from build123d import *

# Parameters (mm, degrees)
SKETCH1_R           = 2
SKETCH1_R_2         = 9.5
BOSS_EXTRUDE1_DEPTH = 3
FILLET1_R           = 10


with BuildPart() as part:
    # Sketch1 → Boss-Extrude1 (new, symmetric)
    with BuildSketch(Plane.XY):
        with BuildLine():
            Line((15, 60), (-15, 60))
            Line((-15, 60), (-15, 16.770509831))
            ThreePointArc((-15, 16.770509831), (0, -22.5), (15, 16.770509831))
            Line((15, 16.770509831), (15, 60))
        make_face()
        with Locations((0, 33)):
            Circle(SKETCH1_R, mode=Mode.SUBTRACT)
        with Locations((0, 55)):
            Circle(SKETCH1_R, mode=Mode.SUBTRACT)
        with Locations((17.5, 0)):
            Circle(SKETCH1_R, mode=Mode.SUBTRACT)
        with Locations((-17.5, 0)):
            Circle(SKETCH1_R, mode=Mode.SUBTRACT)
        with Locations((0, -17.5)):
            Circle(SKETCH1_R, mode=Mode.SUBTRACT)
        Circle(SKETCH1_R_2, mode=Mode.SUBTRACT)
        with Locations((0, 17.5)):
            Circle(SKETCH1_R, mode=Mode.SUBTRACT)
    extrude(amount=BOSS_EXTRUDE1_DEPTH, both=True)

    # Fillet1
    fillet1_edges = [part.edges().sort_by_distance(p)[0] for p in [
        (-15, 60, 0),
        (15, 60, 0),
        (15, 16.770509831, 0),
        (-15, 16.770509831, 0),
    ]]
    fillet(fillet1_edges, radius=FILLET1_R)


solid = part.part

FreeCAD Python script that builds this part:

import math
import FreeCAD as App
import Part
import Sketcher


def edges_at(feature, points):
    """Names of the edges that pass closest to the given points."""
    edges = feature.Shape.Edges
    near = lambda p: min(range(len(edges)), key=lambda i: edges[i].distToShape(Part.Vertex(*p))[0])
    return sorted({f"Edge{near(p) + 1}" for p in points})

doc = App.newDocument("Part")
body = doc.addObject("PartDesign::Body", "Body")

sketch1 = doc.addObject("Sketcher::SketchObject", "Sketch")
body.addObject(sketch1)
sketch1.AttachmentSupport = (doc.XY_Plane, [""])
sketch1.MapMode = "FlatFace"
sketch1.addGeometry([
    Part.LineSegment(App.Vector(15, 60, 0), App.Vector(-15, 60, 0)),
    Part.LineSegment(App.Vector(-15, 60, 0), App.Vector(-15, 16.8, 0)),
    Part.ArcOfCircle(Part.Circle(App.Vector(0, 0, 0), App.Vector(0, 0, 1), 22.5), math.radians(132), math.radians(408)),
    Part.LineSegment(App.Vector(15, 16.8, 0), App.Vector(15, 60, 0)),
    Part.Circle(App.Vector(-17.5, 0, 0), App.Vector(0, 0, 1), 2),
    Part.Circle(App.Vector(0, -17.5, 0), App.Vector(0, 0, 1), 2),
    Part.Circle(App.Vector(0, 0, 0), App.Vector(0, 0, 1), 9.5),
    Part.Circle(App.Vector(0, 17.5, 0), App.Vector(0, 0, 1), 2),
    Part.Circle(App.Vector(17.5, 0, 0), App.Vector(0, 0, 1), 2),
    Part.Circle(App.Vector(0, 33, 0), App.Vector(0, 0, 1), 2),
    Part.Circle(App.Vector(0, 55, 0), App.Vector(0, 0, 1), 2),
], False)
sketch1.addConstraint([
    Sketcher.Constraint("Coincident", 0, 2, 1, 1),
    Sketcher.Constraint("Coincident", 1, 2, 2, 1),
    Sketcher.Constraint("Coincident", 2, 2, 3, 1),
    Sketcher.Constraint("Coincident", 3, 2, 0, 1),
    Sketcher.Constraint("Horizontal", 0),
    Sketcher.Constraint("Vertical", 1),
    Sketcher.Constraint("Vertical", 3),
    Sketcher.Constraint("Coincident", 2, 3, -1, 1),
    Sketcher.Constraint("Coincident", 6, 3, -1, 1),
    Sketcher.Constraint("Equal", 4, 5),
    Sketcher.Constraint("Equal", 5, 7),
    Sketcher.Constraint("Equal", 7, 8),
    Sketcher.Constraint("Equal", 8, 9),
    Sketcher.Constraint("Equal", 9, 10),
    Sketcher.Constraint("Symmetric", 5, 3, 7, 3, -1, 1),
    Sketcher.Constraint("Symmetric", 4, 3, 8, 3, -1, 1),
    Sketcher.Constraint("PointOnObject", 4, 3, -1),
    Sketcher.Constraint("PointOnObject", 5, 3, -2),
    Sketcher.Constraint("PointOnObject", 9, 3, -2),
    Sketcher.Constraint("PointOnObject", 10, 3, -2),
    Sketcher.Constraint("Horizontal", 1, 2, 2, 2),
    Sketcher.Constraint("Diameter", 4, 4.0),
    Sketcher.Constraint("Diameter", 6, 19.0),
    Sketcher.Constraint("Radius", 2, 22.5),
    Sketcher.Constraint("DistanceX", 0, 2, 0, 1, 30.0),
    Sketcher.Constraint("DistanceY", -1, 1, 9, 3, 33.0),
    Sketcher.Constraint("DistanceY", -1, 1, 10, 3, 55.0),
    Sketcher.Constraint("DistanceY", -1, 1, 0, 2, 60.0),
    Sketcher.Constraint("DistanceY", 5, 3, 7, 3, 35.0),
    Sketcher.Constraint("DistanceX", 4, 3, 8, 3, 35.0),
])
pad1 = doc.addObject("PartDesign::Pad", "Pad")
body.addObject(pad1)
pad1.Profile = sketch1
pad1.Length = 6
pad1.Midplane = True
doc.recompute()

fillet = doc.addObject("PartDesign::Fillet", "Fillet")
body.addObject(fillet)
fillet.Base = (pad1, edges_at(pad1, [
    (-15, 60, 0),
    (15, 60, 0),
    (15, 16.771, 0),
    (-15, 16.771, 0),
]))
fillet.Radius = 10

doc.recompute()
